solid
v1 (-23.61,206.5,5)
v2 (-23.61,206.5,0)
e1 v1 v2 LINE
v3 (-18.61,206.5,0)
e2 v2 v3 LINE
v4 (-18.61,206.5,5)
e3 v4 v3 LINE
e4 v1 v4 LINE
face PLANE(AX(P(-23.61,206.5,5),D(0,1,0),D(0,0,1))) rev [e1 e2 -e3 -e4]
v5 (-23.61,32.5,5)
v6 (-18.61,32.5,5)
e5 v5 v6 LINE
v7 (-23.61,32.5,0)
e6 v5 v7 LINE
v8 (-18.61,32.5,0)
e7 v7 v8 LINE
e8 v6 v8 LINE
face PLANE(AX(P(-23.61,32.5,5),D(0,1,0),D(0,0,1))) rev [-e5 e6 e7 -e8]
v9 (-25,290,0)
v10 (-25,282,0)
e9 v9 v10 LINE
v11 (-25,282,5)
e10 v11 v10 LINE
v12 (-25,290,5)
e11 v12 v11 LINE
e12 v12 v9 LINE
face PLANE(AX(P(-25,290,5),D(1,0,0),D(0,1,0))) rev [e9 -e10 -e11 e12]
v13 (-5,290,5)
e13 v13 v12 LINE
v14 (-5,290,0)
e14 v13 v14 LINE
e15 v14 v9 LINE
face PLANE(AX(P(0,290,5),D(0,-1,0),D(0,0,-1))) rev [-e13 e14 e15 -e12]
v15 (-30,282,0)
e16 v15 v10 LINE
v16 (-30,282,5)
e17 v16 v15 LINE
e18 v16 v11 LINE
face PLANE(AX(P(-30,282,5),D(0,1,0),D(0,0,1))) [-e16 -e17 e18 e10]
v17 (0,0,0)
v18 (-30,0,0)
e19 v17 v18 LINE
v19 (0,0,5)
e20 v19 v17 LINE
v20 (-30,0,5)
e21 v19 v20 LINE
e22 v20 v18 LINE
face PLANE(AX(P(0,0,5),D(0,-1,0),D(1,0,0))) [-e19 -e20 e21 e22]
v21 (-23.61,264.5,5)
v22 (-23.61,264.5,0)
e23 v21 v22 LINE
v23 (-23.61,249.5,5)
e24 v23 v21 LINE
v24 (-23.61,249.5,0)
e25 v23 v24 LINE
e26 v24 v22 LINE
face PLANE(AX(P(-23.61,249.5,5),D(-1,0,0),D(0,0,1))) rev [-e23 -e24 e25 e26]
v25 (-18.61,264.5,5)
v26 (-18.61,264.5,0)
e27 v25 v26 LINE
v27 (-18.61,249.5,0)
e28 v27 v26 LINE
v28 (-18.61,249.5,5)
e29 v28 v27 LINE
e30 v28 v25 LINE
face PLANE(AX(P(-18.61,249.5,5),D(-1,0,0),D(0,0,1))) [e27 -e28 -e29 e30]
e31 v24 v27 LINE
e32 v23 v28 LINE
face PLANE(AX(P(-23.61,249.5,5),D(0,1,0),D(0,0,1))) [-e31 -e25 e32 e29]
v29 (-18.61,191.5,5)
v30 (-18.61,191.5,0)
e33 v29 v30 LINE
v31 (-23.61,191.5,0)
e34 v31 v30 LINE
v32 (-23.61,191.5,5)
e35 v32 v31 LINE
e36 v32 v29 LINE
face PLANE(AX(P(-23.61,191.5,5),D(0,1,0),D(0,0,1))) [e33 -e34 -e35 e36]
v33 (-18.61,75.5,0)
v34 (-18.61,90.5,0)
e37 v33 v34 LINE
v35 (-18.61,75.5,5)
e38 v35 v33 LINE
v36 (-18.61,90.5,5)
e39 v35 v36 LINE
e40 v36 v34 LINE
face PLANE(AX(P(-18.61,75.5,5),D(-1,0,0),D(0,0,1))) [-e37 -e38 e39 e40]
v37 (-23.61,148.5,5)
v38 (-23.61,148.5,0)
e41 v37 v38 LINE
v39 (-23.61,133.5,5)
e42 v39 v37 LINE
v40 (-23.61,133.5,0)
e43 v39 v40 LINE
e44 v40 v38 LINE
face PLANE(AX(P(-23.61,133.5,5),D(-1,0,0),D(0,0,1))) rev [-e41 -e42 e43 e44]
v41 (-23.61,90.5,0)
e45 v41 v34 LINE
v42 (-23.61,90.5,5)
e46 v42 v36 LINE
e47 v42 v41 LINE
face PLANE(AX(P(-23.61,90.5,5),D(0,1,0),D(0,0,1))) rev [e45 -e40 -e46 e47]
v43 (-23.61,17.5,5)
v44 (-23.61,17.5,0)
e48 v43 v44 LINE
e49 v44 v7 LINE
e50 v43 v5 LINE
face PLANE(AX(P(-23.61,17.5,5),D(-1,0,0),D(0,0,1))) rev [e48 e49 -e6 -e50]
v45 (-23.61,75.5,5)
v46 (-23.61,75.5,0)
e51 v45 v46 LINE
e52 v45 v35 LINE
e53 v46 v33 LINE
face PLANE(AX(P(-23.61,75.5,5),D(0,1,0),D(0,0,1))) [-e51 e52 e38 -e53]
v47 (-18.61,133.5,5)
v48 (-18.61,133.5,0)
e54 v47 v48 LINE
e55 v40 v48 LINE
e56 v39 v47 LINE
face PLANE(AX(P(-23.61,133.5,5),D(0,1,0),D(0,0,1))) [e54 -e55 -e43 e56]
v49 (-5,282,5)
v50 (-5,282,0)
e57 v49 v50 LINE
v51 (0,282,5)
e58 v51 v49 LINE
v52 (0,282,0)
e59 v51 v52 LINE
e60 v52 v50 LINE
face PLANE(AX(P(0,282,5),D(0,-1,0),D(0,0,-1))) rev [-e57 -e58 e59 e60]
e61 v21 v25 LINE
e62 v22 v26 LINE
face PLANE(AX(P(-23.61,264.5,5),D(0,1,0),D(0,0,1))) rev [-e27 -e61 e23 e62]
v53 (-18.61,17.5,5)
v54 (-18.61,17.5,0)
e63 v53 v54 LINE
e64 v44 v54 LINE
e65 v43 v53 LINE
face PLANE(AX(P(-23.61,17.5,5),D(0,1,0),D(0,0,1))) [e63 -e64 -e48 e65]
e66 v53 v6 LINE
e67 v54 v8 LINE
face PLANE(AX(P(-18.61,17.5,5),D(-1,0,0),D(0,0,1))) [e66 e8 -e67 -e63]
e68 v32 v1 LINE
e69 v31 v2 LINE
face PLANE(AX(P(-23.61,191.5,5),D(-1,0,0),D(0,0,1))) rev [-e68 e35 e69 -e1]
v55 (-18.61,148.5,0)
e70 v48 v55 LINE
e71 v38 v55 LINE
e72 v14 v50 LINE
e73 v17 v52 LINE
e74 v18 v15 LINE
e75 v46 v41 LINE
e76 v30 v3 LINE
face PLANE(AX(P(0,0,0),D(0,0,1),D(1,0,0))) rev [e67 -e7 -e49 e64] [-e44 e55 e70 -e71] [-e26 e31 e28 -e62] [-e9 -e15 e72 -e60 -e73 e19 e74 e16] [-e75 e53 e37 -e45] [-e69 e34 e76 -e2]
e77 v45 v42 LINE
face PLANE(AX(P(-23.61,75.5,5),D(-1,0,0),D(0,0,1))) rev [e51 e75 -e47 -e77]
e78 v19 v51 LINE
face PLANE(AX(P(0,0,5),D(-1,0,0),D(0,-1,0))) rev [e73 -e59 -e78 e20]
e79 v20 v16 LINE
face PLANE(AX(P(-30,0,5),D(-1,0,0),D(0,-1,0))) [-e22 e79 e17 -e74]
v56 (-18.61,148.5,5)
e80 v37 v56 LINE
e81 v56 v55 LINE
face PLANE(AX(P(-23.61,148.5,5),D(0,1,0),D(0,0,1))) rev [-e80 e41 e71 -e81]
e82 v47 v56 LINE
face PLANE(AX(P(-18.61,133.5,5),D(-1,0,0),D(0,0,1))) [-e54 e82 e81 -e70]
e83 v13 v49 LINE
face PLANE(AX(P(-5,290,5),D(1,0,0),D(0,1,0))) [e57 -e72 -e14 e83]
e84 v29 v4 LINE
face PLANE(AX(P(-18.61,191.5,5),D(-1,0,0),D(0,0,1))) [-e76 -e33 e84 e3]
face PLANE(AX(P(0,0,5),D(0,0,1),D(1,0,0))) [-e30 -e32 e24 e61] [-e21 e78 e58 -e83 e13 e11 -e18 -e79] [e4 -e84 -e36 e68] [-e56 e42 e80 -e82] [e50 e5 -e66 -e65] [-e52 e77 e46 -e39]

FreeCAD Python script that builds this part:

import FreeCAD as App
import Part
import Sketcher
from FreeCAD import Vector


def add_polygon(sketch, points):
    """Adds a closed chain of lines whose ends are joined by coincident constraints."""
    first, n = sketch.GeometryCount, len(points)
    for a, b in zip(points, points[1:] + points[:1]):
        sketch.addGeometry(Part.LineSegment(App.Vector(*a, 0), App.Vector(*b, 0)), False)
    for i in range(n):
        sketch.addConstraint(Sketcher.Constraint("Coincident", first + i, 2, first + (i + 1) % n, 1))

doc = App.newDocument("Part")
body = doc.addObject("PartDesign::Body", "Body")

# Sketch on XY plane
sketch1 = body.newObject("Sketcher::SketchObject", "Sketch")
sketch1.AttachmentSupport = (doc.getObject("XY_Plane"), [""])
sketch1.MapMode = "FlatFace"
add_polygon(sketch1, [(-30, 290), (-30, 0), (0, 0), (0, 290)])  # lines 0-3
sketch1.addConstraint([
    Sketcher.Constraint("Vertical", 0),
    Sketcher.Constraint("Horizontal", 1),
    Sketcher.Constraint("Vertical", 2),
    Sketcher.Constraint("Horizontal", 3),
    Sketcher.Constraint("Coincident", 1, 2, -1, 1),
    Sketcher.Constraint("DistanceX", 1, 1, 1, 2, 30.0),
    Sketcher.Constraint("DistanceY", 0, 2, 0, 1, 290.0),
])
pad1 = body.newObject("PartDesign::Pad", "Pad")
pad1.Profile = sketch1
pad1.Length = 5

# Sketch on XY plane
sketch2 = body.newObject("Sketcher::SketchObject", "Sketch001")
sketch2.AttachmentSupport = (doc.getObject("XY_Plane"), [""])
sketch2.MapMode = "FlatFace"
add_polygon(sketch2, [(-5, 290), (-5, 282), (0, 282), (0, 290)])  # lines 0-3
sketch2.addConstraint([
    Sketcher.Constraint("Vertical", 0),
    Sketcher.Constraint("Horizontal", 1),
    Sketcher.Constraint("Vertical", 2),
    Sketcher.Constraint("Horizontal", 3),
    Sketcher.Constraint("PointOnObject", 1, 2, -2),
    Sketcher.Constraint("DistanceX", 1, 1, 1, 2, 5.0),
    Sketcher.Constraint("DistanceY", 0, 2, 0, 1, 8.0),
    Sketcher.Constraint("DistanceY", -1, 1, 0, 2, 282.0),
])
pocket1 = body.newObject("PartDesign::Pocket", "Pocket")
pocket1.Profile = sketch2
pocket1.Length = 5
pocket1.Reversed = True

# Sketch on XY plane
sketch3 = body.newObject("Sketcher::SketchObject", "Sketch002")
sketch3.AttachmentSupport = (doc.getObject("XY_Plane"), [""])
sketch3.MapMode = "FlatFace"
add_polygon(sketch3, [(-24, 32), (-24, 18), (-19, 18), (-19, 32)])  # lines 0-3
add_polygon(sketch3, [(-24, 90), (-24, 76), (-19, 76), (-19, 90)])  # lines 4-7
add_polygon(sketch3, [(-24, 148), (-24, 134), (-19, 134), (-19, 148)])  # lines 8-11
add_polygon(sketch3, [(-24, 206), (-24, 192), (-19, 192), (-19, 206)])  # lines 12-15
add_polygon(sketch3, [(-24, 264), (-24, 250), (-19, 250), (-19, 264)])  # lines 16-19
add_polygon(sketch3, [(-30, 290), (-30, 282), (-25, 282), (-25, 290)])  # lines 20-23
sketch3.addConstraint([
    Sketcher.Constraint("Vertical", 0),
    Sketcher.Constraint("Horizontal", 1),
    Sketcher.Constraint("Vertical", 2),
    Sketcher.Constraint("Horizontal", 3),
    Sketcher.Constraint("Vertical", 4),
    Sketcher.Constraint("Horizontal", 5),
    Sketcher.Constraint("Vertical", 6),
    Sketcher.Constraint("Horizontal", 7),
    Sketcher.Constraint("Vertical", 8),
    Sketcher.Constraint("Horizontal", 9),
    Sketcher.Constraint("Vertical", 10),
    Sketcher.Constraint("Horizontal", 11),
    Sketcher.Constraint("Vertical", 12),
    Sketcher.Constraint("Horizontal", 13),
    Sketcher.Constraint("Vertical", 14),
    Sketcher.Constraint("Horizontal", 15),
    Sketcher.Constraint("Vertical", 16),
    Sketcher.Constraint("Horizontal", 17),
    Sketcher.Constraint("Vertical", 18),
    Sketcher.Constraint("Horizontal", 19),
    Sketcher.Constraint("Vertical", 20),
    Sketcher.Constraint("Horizontal", 21),
    Sketcher.Constraint("Vertical", 22),
    Sketcher.Constraint("Horizontal", 23),
    Sketcher.Constraint("Vertical", 3, 2, 4, 2),
    Sketcher.Constraint("Vertical", 2, 2, 5, 2),
    Sketcher.Constraint("Vertical", 7, 2, 8, 2),
    Sketcher.Constraint("Vertical", 6, 2, 9, 2),
    Sketcher.Constraint("Vertical", 11, 2, 12, 2),
    Sketcher.Constraint("Vertical", 10, 2, 13, 2),
    Sketcher.Constraint("Vertical", 15, 2, 16, 2),
    Sketcher.Constraint("Vertical", 14, 2, 17, 2),
    Sketcher.Constraint("Equal", 19, 21),
    Sketcher.Constraint("Equal", 2, 4),
    Sketcher.Constraint("Equal", 6, 8),
    Sketcher.Constraint("Equal", 10, 12),
    Sketcher.Constraint("Equal", 14, 16),
    Sketcher.Constraint("DistanceX", 1, 1, 1, 2, 5.0),
    Sketcher.Constraint("DistanceY", 0, 2, 0, 1, 15.0),
    Sketcher.Constraint("DistanceY", 20, 2, 20, 1, 8.0),
    Sketcher.Constraint("DistanceX", 20, 2, -1, 1, 30.0),
    Sketcher.Constraint("DistanceY", -1, 1, 20, 2, 282.0),
    Sketcher.Constraint("DistanceY", 3, 2, 4, 2, 43.0),
    Sketcher.Constraint("DistanceY", 7, 2, 8, 2, 43.0),
    Sketcher.Constraint("DistanceY", 11, 2, 12, 2, 43.0),
    Sketcher.Constraint("DistanceY", 15, 2, 16, 2, 43.0),
    Sketcher.Constraint("DistanceY", -1, 1, 0, 2, 17.5),
    Sketcher.Constraint("DistanceX", 0, 2, -1, 1, 23.61),
])
pocket2 = body.newObject("PartDesign::Pocket", "Pocket001")
pocket2.Profile = sketch3
pocket2.Length = 5
pocket2.Reversed = True

doc.recompute()
